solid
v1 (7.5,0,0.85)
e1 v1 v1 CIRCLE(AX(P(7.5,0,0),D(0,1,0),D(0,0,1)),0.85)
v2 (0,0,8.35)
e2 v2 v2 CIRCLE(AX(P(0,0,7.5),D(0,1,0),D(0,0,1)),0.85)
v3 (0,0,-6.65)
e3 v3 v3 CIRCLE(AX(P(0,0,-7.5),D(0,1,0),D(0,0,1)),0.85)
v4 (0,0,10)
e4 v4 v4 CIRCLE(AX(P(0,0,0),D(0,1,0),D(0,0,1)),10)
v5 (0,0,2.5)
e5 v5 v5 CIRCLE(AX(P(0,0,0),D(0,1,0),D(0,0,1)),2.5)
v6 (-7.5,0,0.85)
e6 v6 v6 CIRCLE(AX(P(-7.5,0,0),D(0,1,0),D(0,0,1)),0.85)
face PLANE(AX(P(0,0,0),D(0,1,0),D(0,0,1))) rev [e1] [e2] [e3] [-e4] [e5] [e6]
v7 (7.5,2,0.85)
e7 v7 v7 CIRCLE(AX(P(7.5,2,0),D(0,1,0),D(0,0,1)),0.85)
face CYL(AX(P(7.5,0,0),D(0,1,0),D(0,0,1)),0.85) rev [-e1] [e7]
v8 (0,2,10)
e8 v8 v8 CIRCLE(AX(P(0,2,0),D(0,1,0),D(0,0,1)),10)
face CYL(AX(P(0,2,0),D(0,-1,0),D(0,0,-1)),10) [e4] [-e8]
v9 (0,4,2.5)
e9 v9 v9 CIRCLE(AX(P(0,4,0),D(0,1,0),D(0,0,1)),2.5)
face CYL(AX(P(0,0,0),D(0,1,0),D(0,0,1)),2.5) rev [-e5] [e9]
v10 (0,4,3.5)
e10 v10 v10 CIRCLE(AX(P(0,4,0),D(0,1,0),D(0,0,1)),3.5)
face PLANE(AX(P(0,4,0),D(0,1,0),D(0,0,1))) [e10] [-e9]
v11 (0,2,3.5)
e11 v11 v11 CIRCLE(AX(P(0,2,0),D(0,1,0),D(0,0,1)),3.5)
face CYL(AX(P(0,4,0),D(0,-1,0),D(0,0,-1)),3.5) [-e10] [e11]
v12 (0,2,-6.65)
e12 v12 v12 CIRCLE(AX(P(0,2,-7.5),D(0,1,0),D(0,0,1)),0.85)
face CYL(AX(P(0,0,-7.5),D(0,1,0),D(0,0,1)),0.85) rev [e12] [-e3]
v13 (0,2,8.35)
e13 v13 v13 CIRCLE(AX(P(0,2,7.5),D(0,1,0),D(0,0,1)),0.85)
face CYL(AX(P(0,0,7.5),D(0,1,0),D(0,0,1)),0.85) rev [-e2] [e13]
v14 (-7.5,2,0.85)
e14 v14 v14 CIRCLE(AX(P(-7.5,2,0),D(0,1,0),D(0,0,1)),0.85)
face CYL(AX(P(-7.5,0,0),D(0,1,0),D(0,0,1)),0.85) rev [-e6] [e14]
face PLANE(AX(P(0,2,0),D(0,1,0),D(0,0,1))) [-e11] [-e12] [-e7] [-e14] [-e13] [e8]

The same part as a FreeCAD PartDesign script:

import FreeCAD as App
import Part
import Sketcher
from FreeCAD import Vector
Q = App.Units.Quantity

doc = App.newDocument("Part")
body = doc.addObject("PartDesign::Body", "Body")

sketch1 = body.newObject("Sketcher::SketchObject", "Sketch")
sketch1.AttachmentSupport = (doc.getObject("XZ_Plane"), [""])
sketch1.MapMode = "FlatFace"
sketch1.addGeometry(Part.Circle(Vector(0, 0, 0), Vector(0, 0, 1), 10), False)
sketch1.addConstraint([
    Sketcher.Constraint("Coincident", 0, 3, -1, 1),
    Sketcher.Constraint("Diameter", 0, Q("20 mm")),
])
pad1 = body.newObject("PartDesign::Pad", "Pad")
pad1.Profile = sketch1
pad1.Length = 2
pad1.Reversed = True

sketch2 = body.newObject("Sketcher::SketchObject", "Sketch001")
sketch2.AttachmentSupport = (doc.getObject("XZ_Plane"), [""])
sketch2.MapMode = "FlatFace"
sketch2.AttachmentOffset = App.Placement(Vector(0, 0, -2), App.Rotation())
sketch2.addGeometry(Part.Circle(Vector(0, 0, 0), Vector(0, 0, 1), 3.5), False)
sketch2.addConstraint([
    Sketcher.Constraint("Coincident", 0, 3, -1, 1),
    Sketcher.Constraint("Diameter", 0, Q("7 mm")),
])
pad2 = body.newObject("PartDesign::Pad", "Pad001")
pad2.Profile = sketch2
pad2.Length = 2
pad2.Reversed = True

sketch3 = body.newObject("Sketcher::SketchObject", "Sketch002")
sketch3.AttachmentSupport = (doc.getObject("XZ_Plane"), [""])
sketch3.MapMode = "FlatFace"
sketch3.AttachmentOffset = App.Placement(Vector(0, 0, -4), App.Rotation())
sketch3.addGeometry(Part.Circle(Vector(0, 0, 0), Vector(0, 0, 1), 2.5), False)
sketch3.addConstraint([
    Sketcher.Constraint("Coincident", 0, 3, -1, 1),
    Sketcher.Constraint("Diameter", 0, Q("5 mm")),
])
pocket1 = body.newObject("PartDesign::Pocket", "Pocket")
pocket1.Profile = sketch3
pocket1.Type = "ThroughAll"
pocket1.Reversed = True

sketch4 = body.newObject("Sketcher::SketchObject", "Sketch003")
sketch4.AttachmentSupport = (doc.getObject("XZ_Plane"), [""])
sketch4.MapMode = "FlatFace"
sketch4.AttachmentOffset = App.Placement(Vector(0, 0, -2), App.Rotation())
sketch4.addGeometry([
    Part.Circle(Vector(0, -7.5, 0), Vector(0, 0, 1), 0.85),
    Part.Circle(Vector(-7.5, 0, 0), Vector(0, 0, 1), 0.85),
    Part.Circle(Vector(7.5, 0, 0), Vector(0, 0, 1), 0.85),
    Part.Circle(Vector(0, 7.5, 0), Vector(0, 0, 1), 0.85),
], False)
sketch4.addConstraint([
    Sketcher.Constraint("Equal", 0, 1),
    Sketcher.Constraint("Equal", 1, 2),
    Sketcher.Constraint("Equal", 2, 3),
    Sketcher.Constraint("Symmetric", 1, 3, 2, 3, -1, 1),
    Sketcher.Constraint("Symmetric", 0, 3, 3, 3, -1, 1),
    Sketcher.Constraint("PointOnObject", 0, 3, -2),
    Sketcher.Constraint("PointOnObject", 1, 3, -1),
    Sketcher.Constraint("Diameter", 0, Q("1.7 mm")),
    Sketcher.Constraint("DistanceX", 1, 3, 2, 3, Q("15 mm")),
    Sketcher.Constraint("DistanceY", 0, 3, 3, 3, Q("15 mm")),
])
pocket2 = body.newObject("PartDesign::Pocket", "Pocket001")
pocket2.Profile = sketch4
pocket2.Type = "ThroughAll"
pocket2.Reversed = True

doc.recompute()
